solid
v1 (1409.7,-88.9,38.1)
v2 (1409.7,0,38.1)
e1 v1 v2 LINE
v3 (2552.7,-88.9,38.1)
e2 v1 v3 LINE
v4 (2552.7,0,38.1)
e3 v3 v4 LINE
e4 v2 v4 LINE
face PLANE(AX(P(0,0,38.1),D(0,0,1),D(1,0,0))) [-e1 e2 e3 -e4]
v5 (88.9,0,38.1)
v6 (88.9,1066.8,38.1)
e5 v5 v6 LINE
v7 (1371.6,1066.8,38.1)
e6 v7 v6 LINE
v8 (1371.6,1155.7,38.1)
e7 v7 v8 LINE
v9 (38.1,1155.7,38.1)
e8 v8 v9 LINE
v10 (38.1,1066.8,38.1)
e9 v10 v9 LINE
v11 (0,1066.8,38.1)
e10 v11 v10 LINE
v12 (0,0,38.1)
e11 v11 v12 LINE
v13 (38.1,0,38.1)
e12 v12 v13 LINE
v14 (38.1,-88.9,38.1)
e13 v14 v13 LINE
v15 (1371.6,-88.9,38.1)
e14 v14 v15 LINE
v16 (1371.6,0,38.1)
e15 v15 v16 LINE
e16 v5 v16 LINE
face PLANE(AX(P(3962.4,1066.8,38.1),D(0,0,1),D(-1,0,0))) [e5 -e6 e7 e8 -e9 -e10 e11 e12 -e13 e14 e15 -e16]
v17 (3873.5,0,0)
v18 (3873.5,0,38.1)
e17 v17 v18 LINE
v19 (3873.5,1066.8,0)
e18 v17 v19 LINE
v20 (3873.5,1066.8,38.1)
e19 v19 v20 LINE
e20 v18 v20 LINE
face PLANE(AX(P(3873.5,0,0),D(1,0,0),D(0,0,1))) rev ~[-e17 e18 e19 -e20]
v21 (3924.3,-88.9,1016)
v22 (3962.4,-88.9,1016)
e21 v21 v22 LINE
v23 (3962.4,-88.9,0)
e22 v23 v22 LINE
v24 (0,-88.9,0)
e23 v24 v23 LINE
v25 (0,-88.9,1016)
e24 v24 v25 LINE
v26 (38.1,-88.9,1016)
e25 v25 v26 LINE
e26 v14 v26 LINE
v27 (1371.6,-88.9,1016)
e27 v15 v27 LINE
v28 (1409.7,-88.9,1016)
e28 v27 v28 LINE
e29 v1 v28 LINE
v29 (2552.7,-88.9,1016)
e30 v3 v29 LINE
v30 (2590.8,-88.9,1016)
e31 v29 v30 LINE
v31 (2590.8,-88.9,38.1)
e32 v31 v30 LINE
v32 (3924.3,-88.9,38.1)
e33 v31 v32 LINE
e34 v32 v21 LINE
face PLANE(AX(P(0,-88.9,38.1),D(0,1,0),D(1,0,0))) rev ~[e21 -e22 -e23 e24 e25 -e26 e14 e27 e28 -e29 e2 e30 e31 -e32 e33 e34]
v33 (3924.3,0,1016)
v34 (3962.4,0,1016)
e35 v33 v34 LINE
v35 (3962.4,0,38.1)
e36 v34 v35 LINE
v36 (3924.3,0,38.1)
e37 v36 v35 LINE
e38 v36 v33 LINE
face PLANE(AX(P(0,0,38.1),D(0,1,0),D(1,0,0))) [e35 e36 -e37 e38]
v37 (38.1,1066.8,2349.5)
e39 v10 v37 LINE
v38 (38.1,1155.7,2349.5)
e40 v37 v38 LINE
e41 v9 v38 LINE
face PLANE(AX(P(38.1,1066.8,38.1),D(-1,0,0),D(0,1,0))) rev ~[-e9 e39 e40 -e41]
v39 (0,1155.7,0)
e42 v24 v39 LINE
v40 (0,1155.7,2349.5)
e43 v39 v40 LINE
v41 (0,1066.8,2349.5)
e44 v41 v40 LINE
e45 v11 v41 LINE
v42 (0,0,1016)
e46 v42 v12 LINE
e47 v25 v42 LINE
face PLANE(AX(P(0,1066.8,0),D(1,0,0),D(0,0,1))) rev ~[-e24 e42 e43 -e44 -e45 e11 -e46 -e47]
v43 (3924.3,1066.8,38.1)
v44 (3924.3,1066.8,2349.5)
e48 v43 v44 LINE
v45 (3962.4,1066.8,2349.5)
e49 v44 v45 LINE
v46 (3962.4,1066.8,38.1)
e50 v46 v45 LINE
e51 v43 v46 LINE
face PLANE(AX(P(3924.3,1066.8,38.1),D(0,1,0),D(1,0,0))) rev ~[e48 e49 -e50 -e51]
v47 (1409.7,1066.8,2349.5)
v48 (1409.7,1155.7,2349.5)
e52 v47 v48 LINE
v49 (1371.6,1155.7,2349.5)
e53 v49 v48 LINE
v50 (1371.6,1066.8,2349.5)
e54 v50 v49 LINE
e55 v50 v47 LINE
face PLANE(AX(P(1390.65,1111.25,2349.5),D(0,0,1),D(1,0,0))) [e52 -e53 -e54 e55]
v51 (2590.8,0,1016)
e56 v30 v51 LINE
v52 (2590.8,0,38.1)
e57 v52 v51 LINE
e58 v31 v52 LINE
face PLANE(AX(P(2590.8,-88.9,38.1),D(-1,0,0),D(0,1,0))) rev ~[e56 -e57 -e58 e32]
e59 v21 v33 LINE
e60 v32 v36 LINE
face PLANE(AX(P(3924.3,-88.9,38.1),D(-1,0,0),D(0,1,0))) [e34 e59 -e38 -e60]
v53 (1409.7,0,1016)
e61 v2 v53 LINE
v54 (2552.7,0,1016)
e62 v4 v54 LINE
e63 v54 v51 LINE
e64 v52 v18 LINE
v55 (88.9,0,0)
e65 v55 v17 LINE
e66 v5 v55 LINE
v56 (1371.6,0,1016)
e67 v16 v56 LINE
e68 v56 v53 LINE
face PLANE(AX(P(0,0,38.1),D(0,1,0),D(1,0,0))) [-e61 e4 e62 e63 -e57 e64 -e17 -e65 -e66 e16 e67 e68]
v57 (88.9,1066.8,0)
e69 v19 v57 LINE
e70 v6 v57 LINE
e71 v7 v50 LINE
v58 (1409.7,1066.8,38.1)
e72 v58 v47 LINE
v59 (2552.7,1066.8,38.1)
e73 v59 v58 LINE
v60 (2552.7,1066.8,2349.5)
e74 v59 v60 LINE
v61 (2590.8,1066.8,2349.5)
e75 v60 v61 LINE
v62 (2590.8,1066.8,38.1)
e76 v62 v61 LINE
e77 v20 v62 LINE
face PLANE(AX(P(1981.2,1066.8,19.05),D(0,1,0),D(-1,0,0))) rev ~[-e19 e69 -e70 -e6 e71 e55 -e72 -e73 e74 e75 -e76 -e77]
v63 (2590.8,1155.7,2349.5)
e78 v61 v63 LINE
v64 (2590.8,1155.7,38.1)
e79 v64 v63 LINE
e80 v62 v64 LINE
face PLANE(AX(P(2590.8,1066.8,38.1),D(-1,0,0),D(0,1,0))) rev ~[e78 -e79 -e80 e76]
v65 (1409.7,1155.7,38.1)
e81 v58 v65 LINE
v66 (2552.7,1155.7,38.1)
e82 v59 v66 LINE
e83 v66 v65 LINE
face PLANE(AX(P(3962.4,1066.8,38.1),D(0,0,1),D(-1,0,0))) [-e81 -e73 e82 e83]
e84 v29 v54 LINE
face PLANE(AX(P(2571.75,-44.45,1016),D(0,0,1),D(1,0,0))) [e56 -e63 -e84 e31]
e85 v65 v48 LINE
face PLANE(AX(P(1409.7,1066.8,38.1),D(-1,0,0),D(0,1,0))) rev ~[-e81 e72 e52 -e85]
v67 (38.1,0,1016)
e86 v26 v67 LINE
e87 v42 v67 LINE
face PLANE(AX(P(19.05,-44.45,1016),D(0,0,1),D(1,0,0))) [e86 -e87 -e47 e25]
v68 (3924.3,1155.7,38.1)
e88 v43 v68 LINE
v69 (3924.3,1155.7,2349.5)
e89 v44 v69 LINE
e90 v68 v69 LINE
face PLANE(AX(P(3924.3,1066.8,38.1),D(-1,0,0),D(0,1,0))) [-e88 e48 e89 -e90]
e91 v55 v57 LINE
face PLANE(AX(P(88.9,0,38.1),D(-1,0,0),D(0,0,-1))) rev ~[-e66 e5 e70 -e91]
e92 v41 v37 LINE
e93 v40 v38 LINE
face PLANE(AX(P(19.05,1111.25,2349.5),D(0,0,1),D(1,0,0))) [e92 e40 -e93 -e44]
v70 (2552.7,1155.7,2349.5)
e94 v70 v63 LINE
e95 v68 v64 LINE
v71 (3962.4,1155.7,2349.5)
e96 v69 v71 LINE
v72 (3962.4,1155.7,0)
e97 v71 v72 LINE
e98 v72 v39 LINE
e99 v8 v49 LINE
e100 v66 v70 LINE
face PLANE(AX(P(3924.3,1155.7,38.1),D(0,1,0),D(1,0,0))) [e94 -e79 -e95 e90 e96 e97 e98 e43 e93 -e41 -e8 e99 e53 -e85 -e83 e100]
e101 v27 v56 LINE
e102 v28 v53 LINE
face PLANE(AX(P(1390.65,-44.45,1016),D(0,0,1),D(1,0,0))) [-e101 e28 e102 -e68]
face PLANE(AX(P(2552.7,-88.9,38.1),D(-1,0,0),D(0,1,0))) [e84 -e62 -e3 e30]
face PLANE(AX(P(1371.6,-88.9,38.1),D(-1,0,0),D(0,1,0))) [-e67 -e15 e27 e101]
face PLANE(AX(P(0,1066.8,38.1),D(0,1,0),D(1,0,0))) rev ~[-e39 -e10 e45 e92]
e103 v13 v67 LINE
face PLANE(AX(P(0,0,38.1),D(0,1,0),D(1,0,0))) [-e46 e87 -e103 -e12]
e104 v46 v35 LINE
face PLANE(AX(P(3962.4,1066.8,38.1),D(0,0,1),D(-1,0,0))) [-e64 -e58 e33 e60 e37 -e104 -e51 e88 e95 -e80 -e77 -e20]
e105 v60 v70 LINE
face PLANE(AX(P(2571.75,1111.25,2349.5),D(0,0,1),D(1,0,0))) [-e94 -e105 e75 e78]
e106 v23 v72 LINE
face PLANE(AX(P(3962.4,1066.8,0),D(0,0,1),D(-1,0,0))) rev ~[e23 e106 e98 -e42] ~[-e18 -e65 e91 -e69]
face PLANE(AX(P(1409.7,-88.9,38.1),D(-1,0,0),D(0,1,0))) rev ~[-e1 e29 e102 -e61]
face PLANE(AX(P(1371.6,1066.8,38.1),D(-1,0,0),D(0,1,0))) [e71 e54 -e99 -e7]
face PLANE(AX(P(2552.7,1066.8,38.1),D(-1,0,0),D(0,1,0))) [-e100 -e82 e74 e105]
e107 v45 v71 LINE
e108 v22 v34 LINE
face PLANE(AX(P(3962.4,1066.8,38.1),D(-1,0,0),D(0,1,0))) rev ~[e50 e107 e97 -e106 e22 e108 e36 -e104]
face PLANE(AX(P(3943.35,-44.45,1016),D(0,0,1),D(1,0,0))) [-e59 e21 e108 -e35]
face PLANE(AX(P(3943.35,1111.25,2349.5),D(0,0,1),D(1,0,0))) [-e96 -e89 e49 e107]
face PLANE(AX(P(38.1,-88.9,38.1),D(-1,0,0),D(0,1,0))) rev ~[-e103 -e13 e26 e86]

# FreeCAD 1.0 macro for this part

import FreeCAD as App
import Part
import Sketcher
Q = App.Units.Quantity


def add_polygon(sketch, points):
    """Adds a closed chain of lines whose ends are joined by coincident constraints."""
    first, n = sketch.GeometryCount, len(points)
    for a, b in zip(points, points[1:] + points[:1]):
        sketch.addGeometry(Part.LineSegment(App.Vector(*a, 0), App.Vector(*b, 0)), False)
    for i in range(n):
        sketch.addConstraint(Sketcher.Constraint("Coincident", first + i, 2, first + (i + 1) % n, 1))

doc = App.newDocument("Part")
body = doc.addObject("PartDesign::Body", "Body")

# Sketch on XZ plane
sketch1 = body.newObject("Sketcher::SketchObject", "Sketch")
sketch1.AttachmentSupport = (doc.getObject("XZ_Plane"), [""])
sketch1.MapMode = "FlatFace"
add_polygon(sketch1, [(0, 38.1), (0, 0), (3962.4, 0), (3962.4, 38.1)])  # lines 0-3
sketch1.addConstraint([
    Sketcher.Constraint("Vertical", 0),
    Sketcher.Constraint("Horizontal", 1),
    Sketcher.Constraint("Vertical", 2),
    Sketcher.Constraint("Horizontal", 3),
    Sketcher.Constraint("Coincident", 0, 2, -1, 1),
    Sketcher.Constraint("DistanceX", 1, 1, 1, 2, Q("156 in")),
    Sketcher.Constraint("DistanceY", 0, 2, 0, 1, Q("1.5 in")),
])
pad1 = body.newObject("PartDesign::Pad", "Pad")
pad1.Profile = sketch1
pad1.Length = Q("3.5 in")

# Sketch on XY plane
sketch2 = body.newObject("Sketcher::SketchObject", "Sketch001")
sketch2.AttachmentSupport = (doc.getObject("XY_Plane"), [""])
sketch2.MapMode = "FlatFace"
sketch2.AttachmentOffset = App.Placement(App.Vector(0, 0, 1.5 * 25.4), App.Rotation())
add_polygon(sketch2, [(0, 0), (0, -88.9), (38.1, -88.9), (38.1, 0)])  # lines 0-3
add_polygon(sketch2, [(1371.6, 0), (1371.6, -88.9), (1409.7, -88.9), (1409.7, 0)])  # lines 4-7
add_polygon(sketch2, [(2552.7, 0), (2552.7, -88.9), (2590.8, -88.9), (2590.8, 0)])  # lines 8-11
add_polygon(sketch2, [(3924.3, 0), (3924.3, -88.9), (3962.4, -88.9), (3962.4, 0)])  # lines 12-15
sketch2.addConstraint([
    Sketcher.Constraint("Vertical", 0),
    Sketcher.Constraint("Horizontal", 1),
    Sketcher.Constraint("Vertical", 2),
    Sketcher.Constraint("Horizontal", 3),
    Sketcher.Constraint("Vertical", 4),
    Sketcher.Constraint("Horizontal", 5),
    Sketcher.Constraint("Vertical", 6),
    Sketcher.Constraint("Horizontal", 7),
    Sketcher.Constraint("Vertical", 8),
    Sketcher.Constraint("Horizontal", 9),
    Sketcher.Constraint("Vertical", 10),
    Sketcher.Constraint("Horizontal", 11),
    Sketcher.Constraint("Vertical", 12),
    Sketcher.Constraint("Horizontal", 13),
    Sketcher.Constraint("Vertical", 14),
    Sketcher.Constraint("Horizontal", 15),
    Sketcher.Constraint("Coincident", 3, 2, -1, 1),
    Sketcher.Constraint("PointOnObject", 6, 2, -1),
    Sketcher.Constraint("PointOnObject", 10, 2, -1),
    Sketcher.Constraint("PointOnObject", 14, 2, -1),
    Sketcher.Constraint("Horizontal", 1, 2, 4, 2),
    Sketcher.Constraint("Horizontal", 5, 2, 8, 2),
    Sketcher.Constraint("Horizontal", 9, 2, 12, 2),
    Sketcher.Constraint("Equal", 3, 5),
    Sketcher.Constraint("Equal", 7, 9),
    Sketcher.Constraint("Equal", 11, 13),
    Sketcher.Constraint("DistanceX", 1, 1, 1, 2, Q("1.5 in")),
    Sketcher.Constraint("DistanceY", 0, 2, 0, 1, Q("3.5 in")),
    Sketcher.Constraint("DistanceX", -1, 1, 4, 2, Q("54 in")),
    Sketcher.Constraint("DistanceX", -1, 1, 9, 2, Q("102 in")),
    Sketcher.Constraint("DistanceX", -1, 1, 13, 2, Q("156 in")),
])
pad2 = body.newObject("PartDesign::Pad", "Pad001")
pad2.Profile = sketch2
pad2.Length = Q("38.5 in")

# Sketch on XZ plane
sketch3 = body.newObject("Sketcher::SketchObject", "Sketch002")
sketch3.AttachmentSupport = (doc.getObject("XZ_Plane"), [""])
sketch3.MapMode = "FlatFace"
add_polygon(sketch3, [(88.9, 38.1), (88.9, 0), (0, 0), (0, 38.1)])  # lines 0-3
add_polygon(sketch3, [(3962.4, 38.1), (3962.4, 0), (3873.5, 0), (3873.5, 38.1)])  # lines 4-7
sketch3.addConstraint([
    Sketcher.Constraint("Vertical", 0),
    Sketcher.Constraint("Horizontal", 1),
    Sketcher.Constraint("Vertical", 2),
    Sketcher.Constraint("Horizontal", 3),
    Sketcher.Constraint("Vertical", 4),
    Sketcher.Constraint("Horizontal", 5),
    Sketcher.Constraint("Vertical", 6),
    Sketcher.Constraint("Horizontal", 7),
    Sketcher.Constraint("Coincident", 1, 2, -1, 1),
    Sketcher.Constraint("PointOnObject", 4, 2, -1),
    Sketcher.Constraint("Horizontal", 3, 2, 6, 2),
    Sketcher.Constraint("Equal", 3, 5),
    Sketcher.Constraint("DistanceX", 1, 2, 1, 1, Q("3.5 in")),
    Sketcher.Constraint("DistanceY", 0, 2, 0, 1, Q("1.5 in")),
    Sketcher.Constraint("DistanceX", -1, 1, 4, 2, Q("156 in")),
])
pad3 = body.newObject("PartDesign::Pad", "Pad002")
pad3.Profile = sketch3
pad3.Length = Q("42 in")
pad3.Reversed = True

# Sketch on XZ plane
sketch4 = body.newObject("Sketcher::SketchObject", "Sketch003")
sketch4.AttachmentSupport = (doc.getObject("XZ_Plane"), [""])
sketch4.MapMode = "FlatFace"
sketch4.AttachmentOffset = App.Placement(App.Vector(0, 0, -42 * 25.4), App.Rotation())
add_polygon(sketch4, [(3962.4, 38.1), (3962.4, 0), (0, 0), (0, 38.1)])  # lines 0-3
sketch4.addConstraint([
    Sketcher.Constraint("Vertical", 0),
    Sketcher.Constraint("Horizontal", 1),
    Sketcher.Constraint("Vertical", 2),
    Sketcher.Constraint("Horizontal", 3),
    Sketcher.Constraint("Coincident", 1, 2, -1, 1),
    Sketcher.Constraint("DistanceX", 1, 2, 1, 1, Q("156 in")),
    Sketcher.Constraint("DistanceY", 0, 2, 0, 1, Q("1.5 in")),
])
pad4 = body.newObject("PartDesign::Pad", "Pad003")
pad4.Profile = sketch4
pad4.Length = Q("3.5 in")
pad4.Reversed = True

# Sketch on XY plane
sketch5 = body.newObject("Sketcher::SketchObject", "Sketch004")
sketch5.AttachmentSupport = (doc.getObject("XY_Plane"), [""])
sketch5.MapMode = "FlatFace"
sketch5.AttachmentOffset = App.Placement(App.Vector(0, 0, 1.5 * 25.4), App.Rotation())
add_polygon(sketch5, [(3924.3, 1155.7), (3924.3, 1066.8), (3962.4, 1066.8), (3962.4, 1155.7)])  # lines 0-3
add_polygon(sketch5, [(2552.7, 1155.7), (2552.7, 1066.8), (2590.8, 1066.8), (2590.8, 1155.7)])  # lines 4-7
add_polygon(sketch5, [(1371.6, 1155.7), (1371.6, 1066.8), (1409.7, 1066.8), (1409.7, 1155.7)])  # lines 8-11
add_polygon(sketch5, [(0, 1155.7), (0, 1066.8), (38.1, 1066.8), (38.1, 1155.7)])  # lines 12-15
sketch5.addConstraint([
    Sketcher.Constraint("Vertical", 0),
    Sketcher.Constraint("Horizontal", 1),
    Sketcher.Constraint("Vertical", 2),
    Sketcher.Constraint("Horizontal", 3),
    Sketcher.Constraint("Vertical", 4),
    Sketcher.Constraint("Horizontal", 5),
    Sketcher.Constraint("Vertical", 6),
    Sketcher.Constraint("Horizontal", 7),
    Sketcher.Constraint("Vertical", 8),
    Sketcher.Constraint("Horizontal", 9),
    Sketcher.Constraint("Vertical", 10),
    Sketcher.Constraint("Horizontal", 11),
    Sketcher.Constraint("Vertical", 12),
    Sketcher.Constraint("Horizontal", 13),
    Sketcher.Constraint("Vertical", 14),
    Sketcher.Constraint("Horizontal", 15),
    Sketcher.Constraint("PointOnObject", 12, 2, -2),
    Sketcher.Constraint("Horizontal", 1, 2, 4, 2),
    Sketcher.Constraint("Horizontal", 3, 2, 6, 2),
    Sketcher.Constraint("Horizontal", 5, 2, 8, 2),
    Sketcher.Constraint("Horizontal", 7, 2, 10, 2),
    Sketcher.Constraint("Horizontal", 9, 2, 12, 2),
    Sketcher.Constraint("Horizontal", 11, 2, 14, 2),
    Sketcher.Constraint("Equal", 3, 5),
    Sketcher.Constraint("Equal", 7, 9),
    Sketcher.Constraint("Equal", 11, 13),
    Sketcher.Constraint("DistanceX", 1, 1, 1, 2, Q("1.5 in")),
    Sketcher.Constraint("DistanceY", 0, 2, 0, 1, Q("3.5 in")),
    Sketcher.Constraint("DistanceY", -1, 1, 0, 2, Q("42 in")),
    Sketcher.Constraint("DistanceX", -1, 1, 1, 2, Q("156 in")),
    Sketcher.Constraint("DistanceX", -1, 1, 5, 2, Q("102 in")),
    Sketcher.Constraint("DistanceX", -1, 1, 8, 2, Q("54 in")),
])
pad5 = body.newObject("PartDesign::Pad", "Pad004")
pad5.Profile = sketch5
pad5.Length = Q("91 in")

doc.recompute()
